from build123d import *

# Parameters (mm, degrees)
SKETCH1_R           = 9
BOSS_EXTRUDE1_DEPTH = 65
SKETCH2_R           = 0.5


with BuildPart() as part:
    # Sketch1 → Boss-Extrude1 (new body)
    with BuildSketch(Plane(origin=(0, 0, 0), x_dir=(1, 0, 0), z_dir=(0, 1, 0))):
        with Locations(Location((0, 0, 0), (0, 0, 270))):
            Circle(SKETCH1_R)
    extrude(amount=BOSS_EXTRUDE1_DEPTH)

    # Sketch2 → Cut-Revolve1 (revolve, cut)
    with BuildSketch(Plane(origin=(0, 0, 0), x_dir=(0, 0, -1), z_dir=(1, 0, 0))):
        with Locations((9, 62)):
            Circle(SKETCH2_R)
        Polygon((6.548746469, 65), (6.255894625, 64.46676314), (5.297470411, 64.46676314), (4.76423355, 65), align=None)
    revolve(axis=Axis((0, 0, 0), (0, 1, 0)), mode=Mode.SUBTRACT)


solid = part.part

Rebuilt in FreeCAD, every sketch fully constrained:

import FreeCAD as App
import Part
import Sketcher
from FreeCAD import Vector
Q = App.Units.Quantity

doc = App.newDocument("Part")
params = doc.addObject("Spreadsheet::Sheet", "Params")
for row, (alias, value) in enumerate([
    ("sketch1_diameter", "18 mm"),
    ("pad1_length", "65 mm"),
    ("sketch2_diameter", "1 mm"),
    ("groove_angle", "360 deg"),
], start=1):
    params.set(f"A{row}", alias)
    params.set(f"B{row}", "=" + value)
    params.setAlias(f"B{row}", alias)

body = doc.addObject("PartDesign::Body", "Body")

# Sketch on XZ plane
sketch1 = body.newObject("Sketcher::SketchObject", "Sketch")
sketch1.AttachmentSupport = (doc.getObject("XZ_Plane"), [""])
sketch1.MapMode = "FlatFace"
sketch1.addGeometry(Part.Circle(Vector(0, 0, 0), Vector(0, 0, 1), 9), False)
sketch1.addConstraint([
    Sketcher.Constraint("Coincident", 0, 3, -1, 1),
    Sketcher.Constraint("Diameter", 0, Q("18 mm")),
])
sketch1.setExpression("Constraints[1]", "Params.sketch1_diameter")
pad1 = body.newObject("PartDesign::Pad", "Pad")
pad1.Profile = sketch1
pad1.setExpression("Length", "Params.pad1_length")
pad1.Reversed = True

# Sketch on YZ plane
sketch2 = body.newObject("Sketcher::SketchObject", "Sketch001")
sketch2.AttachmentSupport = (doc.getObject("YZ_Plane"), [""])
sketch2.MapMode = "FlatFace"
sketch2.addGeometry([
    Part.Circle(Vector(62, -9, 0), Vector(0, 0, 1), 0.5),  # 0
    Part.LineSegment(Vector(64.5, -6.3, 0), Vector(65, -6.5, 0)),  # 1
    Part.LineSegment(Vector(65, -6.5, 0), Vector(65, -4.8, 0)),  # 2
    Part.LineSegment(Vector(65, -4.8, 0), Vector(64.5, -5.3, 0)),  # 3
    Part.LineSegment(Vector(64.5, -5.3, 0), Vector(64.5, -6.3, 0)),  # 4
], False)
sketch2.addConstraint([
    Sketcher.Constraint("Coincident", 1, 2, 2, 1),
    Sketcher.Constraint("Coincident", 2, 2, 3, 1),
    Sketcher.Constraint("Coincident", 3, 2, 4, 1),
    Sketcher.Constraint("Coincident", 4, 2, 1, 1),
    Sketcher.Constraint("Vertical", 2),
    Sketcher.Constraint("Vertical", 4),
    Sketcher.Constraint("Diameter", 0, Q("1 mm")),
    Sketcher.Constraint("Angle", 3, Q("-135 deg")),
    Sketcher.Constraint("DistanceX", -1, 1, 0, 3, Q("62 mm")),
    Sketcher.Constraint("DistanceY", 0, 3, -1, 1, Q("9 mm")),
    Sketcher.Constraint("DistanceX", -1, 1, 1, 2, Q("65 mm")),
    Sketcher.Constraint("Distance", 1, Q("0.608362 mm")),
    Sketcher.Constraint("Distance", 3, Q("0.754111 mm")),
    Sketcher.Constraint("DistanceY", 2, 1, 2, 2, Q("1.784513 mm")),
    Sketcher.Constraint("DistanceY", 3, 2, -1, 1, Q("5.29747 mm")),
])
sketch2.setExpression("Constraints[6]", "Params.sketch2_diameter")
groove = body.newObject("PartDesign::Groove", "Groove")
groove.Profile = sketch2
groove.ReferenceAxis = (sketch2, ["H_Axis"])
groove.setExpression("Angle", "Params.groove_angle")

doc.recompute()
